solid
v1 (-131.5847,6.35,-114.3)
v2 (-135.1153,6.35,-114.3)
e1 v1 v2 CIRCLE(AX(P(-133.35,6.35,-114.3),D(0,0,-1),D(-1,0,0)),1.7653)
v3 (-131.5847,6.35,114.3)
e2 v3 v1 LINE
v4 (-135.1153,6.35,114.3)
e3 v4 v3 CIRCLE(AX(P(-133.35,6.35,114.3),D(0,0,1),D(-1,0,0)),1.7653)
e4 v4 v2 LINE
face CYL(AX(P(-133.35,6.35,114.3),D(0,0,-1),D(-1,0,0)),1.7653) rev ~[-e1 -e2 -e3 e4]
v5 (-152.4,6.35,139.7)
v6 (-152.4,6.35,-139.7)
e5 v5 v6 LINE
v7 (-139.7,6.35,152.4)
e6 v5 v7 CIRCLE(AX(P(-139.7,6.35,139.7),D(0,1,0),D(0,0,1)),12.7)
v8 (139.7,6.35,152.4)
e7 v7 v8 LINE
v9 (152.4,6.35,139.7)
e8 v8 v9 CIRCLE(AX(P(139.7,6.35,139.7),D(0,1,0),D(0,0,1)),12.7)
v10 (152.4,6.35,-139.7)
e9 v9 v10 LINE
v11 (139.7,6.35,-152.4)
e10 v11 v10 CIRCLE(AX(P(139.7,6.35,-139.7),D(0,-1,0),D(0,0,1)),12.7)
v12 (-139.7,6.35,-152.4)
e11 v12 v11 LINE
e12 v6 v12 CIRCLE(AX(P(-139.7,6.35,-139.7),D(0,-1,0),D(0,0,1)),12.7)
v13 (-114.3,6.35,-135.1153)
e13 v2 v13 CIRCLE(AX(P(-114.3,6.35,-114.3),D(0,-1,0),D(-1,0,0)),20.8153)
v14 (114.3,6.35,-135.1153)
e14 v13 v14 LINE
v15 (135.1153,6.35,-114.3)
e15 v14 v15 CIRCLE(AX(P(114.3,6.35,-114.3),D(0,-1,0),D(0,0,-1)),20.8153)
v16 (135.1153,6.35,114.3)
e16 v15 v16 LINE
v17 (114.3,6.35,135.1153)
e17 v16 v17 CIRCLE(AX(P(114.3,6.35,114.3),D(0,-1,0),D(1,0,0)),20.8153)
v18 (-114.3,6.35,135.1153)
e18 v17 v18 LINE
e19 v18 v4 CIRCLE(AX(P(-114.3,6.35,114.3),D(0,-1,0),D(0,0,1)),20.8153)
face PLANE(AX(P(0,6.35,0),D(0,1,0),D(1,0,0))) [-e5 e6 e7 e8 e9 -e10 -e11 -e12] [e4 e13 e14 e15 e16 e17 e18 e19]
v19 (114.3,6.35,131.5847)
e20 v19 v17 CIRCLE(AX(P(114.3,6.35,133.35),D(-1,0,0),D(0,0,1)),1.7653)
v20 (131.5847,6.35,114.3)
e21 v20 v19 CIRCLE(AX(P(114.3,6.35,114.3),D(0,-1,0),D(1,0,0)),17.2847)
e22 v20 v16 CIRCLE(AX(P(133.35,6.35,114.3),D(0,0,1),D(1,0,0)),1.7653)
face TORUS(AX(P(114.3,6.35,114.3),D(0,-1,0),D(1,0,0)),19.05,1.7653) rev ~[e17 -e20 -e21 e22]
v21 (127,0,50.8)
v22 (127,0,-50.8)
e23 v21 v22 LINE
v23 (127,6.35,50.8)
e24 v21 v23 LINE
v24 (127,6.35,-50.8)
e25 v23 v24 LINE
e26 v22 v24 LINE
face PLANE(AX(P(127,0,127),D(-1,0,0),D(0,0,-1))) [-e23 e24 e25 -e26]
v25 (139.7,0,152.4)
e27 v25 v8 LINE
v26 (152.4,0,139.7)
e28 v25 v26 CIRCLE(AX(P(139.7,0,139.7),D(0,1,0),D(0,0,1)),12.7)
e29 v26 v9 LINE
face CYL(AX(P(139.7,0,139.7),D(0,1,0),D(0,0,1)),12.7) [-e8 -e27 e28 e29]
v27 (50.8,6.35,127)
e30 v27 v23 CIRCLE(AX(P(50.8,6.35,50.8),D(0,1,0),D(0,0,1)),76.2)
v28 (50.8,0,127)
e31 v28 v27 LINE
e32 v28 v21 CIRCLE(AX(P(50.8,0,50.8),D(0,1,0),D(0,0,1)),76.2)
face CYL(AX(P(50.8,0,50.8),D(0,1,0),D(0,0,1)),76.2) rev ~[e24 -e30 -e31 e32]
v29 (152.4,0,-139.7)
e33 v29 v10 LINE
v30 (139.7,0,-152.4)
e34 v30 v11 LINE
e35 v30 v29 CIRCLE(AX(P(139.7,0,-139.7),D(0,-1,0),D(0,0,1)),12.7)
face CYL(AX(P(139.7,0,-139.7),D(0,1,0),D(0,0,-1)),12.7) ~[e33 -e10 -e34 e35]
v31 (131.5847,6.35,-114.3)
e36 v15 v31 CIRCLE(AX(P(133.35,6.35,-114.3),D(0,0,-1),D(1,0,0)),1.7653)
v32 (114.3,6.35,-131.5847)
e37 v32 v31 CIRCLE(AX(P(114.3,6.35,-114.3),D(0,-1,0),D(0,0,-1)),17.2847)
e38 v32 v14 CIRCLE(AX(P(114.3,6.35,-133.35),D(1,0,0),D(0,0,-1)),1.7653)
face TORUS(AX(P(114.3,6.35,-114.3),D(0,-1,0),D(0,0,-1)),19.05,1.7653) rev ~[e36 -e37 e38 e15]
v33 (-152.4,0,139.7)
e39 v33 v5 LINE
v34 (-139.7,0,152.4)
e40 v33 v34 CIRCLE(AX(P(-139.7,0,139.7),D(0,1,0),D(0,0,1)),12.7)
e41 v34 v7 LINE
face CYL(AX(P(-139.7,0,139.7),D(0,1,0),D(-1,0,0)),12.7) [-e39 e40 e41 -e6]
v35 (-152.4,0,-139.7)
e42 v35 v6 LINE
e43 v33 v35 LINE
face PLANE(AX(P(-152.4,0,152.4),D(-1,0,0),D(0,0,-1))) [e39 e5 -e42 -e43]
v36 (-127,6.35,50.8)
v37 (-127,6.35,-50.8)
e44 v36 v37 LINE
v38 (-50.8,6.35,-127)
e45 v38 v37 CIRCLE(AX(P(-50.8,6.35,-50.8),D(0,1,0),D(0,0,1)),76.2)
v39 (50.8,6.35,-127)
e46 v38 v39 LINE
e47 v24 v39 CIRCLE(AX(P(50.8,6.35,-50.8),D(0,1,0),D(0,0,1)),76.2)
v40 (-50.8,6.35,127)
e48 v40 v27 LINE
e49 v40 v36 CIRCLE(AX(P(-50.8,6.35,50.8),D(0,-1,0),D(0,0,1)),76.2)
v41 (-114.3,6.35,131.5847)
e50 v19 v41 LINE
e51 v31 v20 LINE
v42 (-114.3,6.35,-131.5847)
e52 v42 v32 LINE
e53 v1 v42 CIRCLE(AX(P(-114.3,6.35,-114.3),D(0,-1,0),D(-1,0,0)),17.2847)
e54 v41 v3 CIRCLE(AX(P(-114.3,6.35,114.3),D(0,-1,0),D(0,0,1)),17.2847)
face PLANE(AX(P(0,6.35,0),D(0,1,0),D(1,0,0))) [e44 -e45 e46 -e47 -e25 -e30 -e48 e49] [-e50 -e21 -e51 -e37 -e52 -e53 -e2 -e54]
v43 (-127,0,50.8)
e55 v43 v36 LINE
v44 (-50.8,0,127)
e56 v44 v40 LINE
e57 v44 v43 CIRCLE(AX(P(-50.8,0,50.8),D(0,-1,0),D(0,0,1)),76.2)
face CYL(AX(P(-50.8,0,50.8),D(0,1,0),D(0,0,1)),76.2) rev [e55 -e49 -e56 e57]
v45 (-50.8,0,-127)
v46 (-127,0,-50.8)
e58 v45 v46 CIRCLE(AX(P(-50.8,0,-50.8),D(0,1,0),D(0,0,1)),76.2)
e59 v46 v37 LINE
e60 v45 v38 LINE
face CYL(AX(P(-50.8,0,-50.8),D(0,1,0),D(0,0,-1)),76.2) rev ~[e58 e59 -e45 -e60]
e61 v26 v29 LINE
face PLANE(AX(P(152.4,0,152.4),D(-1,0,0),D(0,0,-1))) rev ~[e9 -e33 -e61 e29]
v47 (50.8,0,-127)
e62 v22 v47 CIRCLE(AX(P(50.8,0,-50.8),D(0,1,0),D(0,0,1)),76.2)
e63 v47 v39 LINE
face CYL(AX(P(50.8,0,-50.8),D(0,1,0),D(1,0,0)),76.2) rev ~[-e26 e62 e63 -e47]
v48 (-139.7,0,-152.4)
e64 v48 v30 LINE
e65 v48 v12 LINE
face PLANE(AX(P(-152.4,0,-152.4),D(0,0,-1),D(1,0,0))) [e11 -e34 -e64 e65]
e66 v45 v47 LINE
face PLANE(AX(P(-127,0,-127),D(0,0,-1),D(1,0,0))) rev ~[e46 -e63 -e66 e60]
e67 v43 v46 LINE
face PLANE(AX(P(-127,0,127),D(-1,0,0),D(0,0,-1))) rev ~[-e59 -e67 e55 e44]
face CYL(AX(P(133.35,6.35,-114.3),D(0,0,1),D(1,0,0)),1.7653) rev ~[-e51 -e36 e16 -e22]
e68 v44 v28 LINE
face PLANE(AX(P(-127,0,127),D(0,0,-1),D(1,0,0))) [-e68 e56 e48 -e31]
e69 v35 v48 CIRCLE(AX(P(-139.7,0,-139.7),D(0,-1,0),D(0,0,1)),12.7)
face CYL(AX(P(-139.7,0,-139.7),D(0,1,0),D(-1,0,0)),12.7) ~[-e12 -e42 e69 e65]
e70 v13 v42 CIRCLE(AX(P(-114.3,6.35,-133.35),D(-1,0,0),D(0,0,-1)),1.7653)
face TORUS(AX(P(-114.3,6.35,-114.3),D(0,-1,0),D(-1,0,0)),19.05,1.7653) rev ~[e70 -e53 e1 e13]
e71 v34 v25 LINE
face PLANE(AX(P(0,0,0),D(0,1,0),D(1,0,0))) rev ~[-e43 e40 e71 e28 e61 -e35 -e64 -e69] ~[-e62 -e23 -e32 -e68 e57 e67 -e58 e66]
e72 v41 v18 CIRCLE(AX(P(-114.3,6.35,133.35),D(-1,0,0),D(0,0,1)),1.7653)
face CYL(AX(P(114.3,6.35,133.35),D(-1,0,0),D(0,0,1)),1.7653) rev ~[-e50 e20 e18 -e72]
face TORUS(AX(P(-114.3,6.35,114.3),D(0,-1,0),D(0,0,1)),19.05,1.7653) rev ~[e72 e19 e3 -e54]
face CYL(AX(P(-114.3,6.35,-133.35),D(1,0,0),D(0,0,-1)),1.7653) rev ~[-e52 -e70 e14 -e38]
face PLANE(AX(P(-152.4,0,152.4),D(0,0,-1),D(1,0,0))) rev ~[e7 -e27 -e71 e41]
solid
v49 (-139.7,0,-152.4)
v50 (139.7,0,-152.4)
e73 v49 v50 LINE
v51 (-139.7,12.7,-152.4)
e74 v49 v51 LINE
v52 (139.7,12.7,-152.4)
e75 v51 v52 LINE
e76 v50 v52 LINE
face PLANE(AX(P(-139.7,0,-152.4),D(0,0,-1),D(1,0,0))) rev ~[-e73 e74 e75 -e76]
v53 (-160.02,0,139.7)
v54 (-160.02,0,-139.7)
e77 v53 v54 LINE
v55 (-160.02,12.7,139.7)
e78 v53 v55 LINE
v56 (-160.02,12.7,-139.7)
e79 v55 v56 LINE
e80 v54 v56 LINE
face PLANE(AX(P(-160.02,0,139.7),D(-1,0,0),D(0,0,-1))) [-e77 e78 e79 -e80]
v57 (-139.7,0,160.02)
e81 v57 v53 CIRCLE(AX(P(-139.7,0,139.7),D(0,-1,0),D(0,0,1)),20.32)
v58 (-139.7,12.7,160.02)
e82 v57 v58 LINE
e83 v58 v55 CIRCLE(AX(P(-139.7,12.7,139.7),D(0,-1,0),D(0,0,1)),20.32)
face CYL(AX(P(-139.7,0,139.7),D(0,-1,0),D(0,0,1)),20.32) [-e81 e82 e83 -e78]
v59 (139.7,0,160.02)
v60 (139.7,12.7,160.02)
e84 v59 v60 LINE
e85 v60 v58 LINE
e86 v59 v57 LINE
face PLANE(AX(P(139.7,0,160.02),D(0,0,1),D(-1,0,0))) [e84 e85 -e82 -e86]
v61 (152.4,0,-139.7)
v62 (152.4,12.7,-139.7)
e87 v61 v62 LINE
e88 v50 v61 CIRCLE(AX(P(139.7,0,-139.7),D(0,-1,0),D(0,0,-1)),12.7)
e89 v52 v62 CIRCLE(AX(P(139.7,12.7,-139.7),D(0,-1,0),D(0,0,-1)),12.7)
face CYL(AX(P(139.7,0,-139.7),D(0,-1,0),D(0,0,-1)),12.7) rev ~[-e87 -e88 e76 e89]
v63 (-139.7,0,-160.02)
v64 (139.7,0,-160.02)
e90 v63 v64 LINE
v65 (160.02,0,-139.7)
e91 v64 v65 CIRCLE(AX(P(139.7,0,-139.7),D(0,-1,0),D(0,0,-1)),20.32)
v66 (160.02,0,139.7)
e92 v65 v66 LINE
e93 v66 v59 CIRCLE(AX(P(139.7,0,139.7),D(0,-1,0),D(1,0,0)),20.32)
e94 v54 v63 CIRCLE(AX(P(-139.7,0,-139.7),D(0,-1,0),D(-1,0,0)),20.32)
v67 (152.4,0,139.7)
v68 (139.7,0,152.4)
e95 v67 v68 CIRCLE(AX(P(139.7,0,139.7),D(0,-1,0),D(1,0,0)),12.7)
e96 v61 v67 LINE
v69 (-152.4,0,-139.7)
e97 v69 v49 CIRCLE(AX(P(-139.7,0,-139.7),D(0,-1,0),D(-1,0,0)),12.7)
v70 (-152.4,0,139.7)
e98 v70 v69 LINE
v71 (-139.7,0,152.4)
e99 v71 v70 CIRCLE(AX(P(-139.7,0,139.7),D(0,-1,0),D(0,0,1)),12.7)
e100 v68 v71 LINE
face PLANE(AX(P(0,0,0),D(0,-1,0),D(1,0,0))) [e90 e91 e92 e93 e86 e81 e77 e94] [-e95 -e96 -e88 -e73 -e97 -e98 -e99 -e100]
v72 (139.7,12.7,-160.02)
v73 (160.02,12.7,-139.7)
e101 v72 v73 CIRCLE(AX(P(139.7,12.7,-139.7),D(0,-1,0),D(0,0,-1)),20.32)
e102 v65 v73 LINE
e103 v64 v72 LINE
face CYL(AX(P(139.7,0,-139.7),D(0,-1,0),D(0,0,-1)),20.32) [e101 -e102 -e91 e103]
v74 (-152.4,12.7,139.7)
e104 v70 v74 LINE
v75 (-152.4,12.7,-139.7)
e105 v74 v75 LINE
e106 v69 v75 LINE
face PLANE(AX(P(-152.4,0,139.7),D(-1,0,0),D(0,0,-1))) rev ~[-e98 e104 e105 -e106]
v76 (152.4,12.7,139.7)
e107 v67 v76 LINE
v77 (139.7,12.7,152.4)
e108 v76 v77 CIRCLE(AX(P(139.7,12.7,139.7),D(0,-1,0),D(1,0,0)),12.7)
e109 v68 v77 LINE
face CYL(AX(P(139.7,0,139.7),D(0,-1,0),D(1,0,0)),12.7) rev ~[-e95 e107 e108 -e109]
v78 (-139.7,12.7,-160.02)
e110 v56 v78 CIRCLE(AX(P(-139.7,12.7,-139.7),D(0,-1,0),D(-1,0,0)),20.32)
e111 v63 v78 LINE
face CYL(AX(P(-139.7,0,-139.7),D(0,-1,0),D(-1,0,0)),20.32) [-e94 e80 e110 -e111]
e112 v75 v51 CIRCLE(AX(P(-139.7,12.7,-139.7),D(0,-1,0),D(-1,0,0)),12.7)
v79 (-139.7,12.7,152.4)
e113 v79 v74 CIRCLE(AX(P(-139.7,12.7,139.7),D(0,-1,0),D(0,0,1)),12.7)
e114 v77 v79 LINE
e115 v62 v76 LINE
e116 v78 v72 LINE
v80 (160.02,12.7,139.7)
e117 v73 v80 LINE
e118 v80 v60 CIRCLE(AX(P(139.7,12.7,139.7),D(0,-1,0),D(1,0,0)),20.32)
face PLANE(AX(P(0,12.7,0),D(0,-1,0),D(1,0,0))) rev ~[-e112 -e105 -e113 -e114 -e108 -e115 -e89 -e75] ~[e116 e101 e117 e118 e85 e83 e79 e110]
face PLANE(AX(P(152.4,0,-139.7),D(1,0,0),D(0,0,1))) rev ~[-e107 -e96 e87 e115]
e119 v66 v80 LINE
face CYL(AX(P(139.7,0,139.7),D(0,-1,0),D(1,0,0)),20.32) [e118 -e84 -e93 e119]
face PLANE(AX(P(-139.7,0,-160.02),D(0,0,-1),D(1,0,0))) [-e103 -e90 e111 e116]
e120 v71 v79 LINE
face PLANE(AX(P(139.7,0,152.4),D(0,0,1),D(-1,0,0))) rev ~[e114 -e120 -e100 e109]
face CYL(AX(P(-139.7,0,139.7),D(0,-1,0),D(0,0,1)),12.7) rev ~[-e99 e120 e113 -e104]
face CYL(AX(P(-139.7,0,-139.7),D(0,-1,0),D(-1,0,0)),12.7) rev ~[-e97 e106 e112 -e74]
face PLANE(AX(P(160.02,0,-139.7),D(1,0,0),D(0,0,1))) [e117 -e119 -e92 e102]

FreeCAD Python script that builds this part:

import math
import FreeCAD as App
import Part
import Sketcher

V = App.Vector
Q = App.Units.Quantity


def edges_at(feature, points):
    """Names of the edges that pass closest to the given points."""
    edges = feature.Shape.Edges
    near = lambda p: min(range(len(edges)), key=lambda i: edges[i].distToShape(Part.Vertex(*p))[0])
    return sorted({f"Edge{near(p) + 1}" for p in points})


def add_polygon(sketch, points):
    """Adds a closed chain of lines whose ends are joined by coincident constraints."""
    first, n = sketch.GeometryCount, len(points)
    for a, b in zip(points, points[1:] + points[:1]):
        sketch.addGeometry(Part.LineSegment(App.Vector(*a, 0), App.Vector(*b, 0)), False)
    for i in range(n):
        sketch.addConstraint(Sketcher.Constraint("Coincident", first + i, 2, first + (i + 1) % n, 1))

doc = App.newDocument("Part")
params = doc.addObject("Spreadsheet::Sheet", "Params")
for row, (alias, value) in enumerate([
    ("sketch1_width", "12 in"),
    ("sketch1_width2", "10 in"),
    ("pad1_length", "0.25 in"),
    ("fillet_radius", "3 in"),
    ("fillet2_radius", "0.5 in"),
    ("sketch2_diameter", "0.139 in"),
    ("sketch3_width", "9 in"),
    ("sketch3_radius", "0.75 in"),
    ("sketch4_radius", "0.8 in"),
    ("sketch4_radius2", "0.5 in"),
    ("sketch4_width", "11 in"),
    ("pad2_length", "0.5 in"),
], start=1):
    params.set(f"A{row}", alias)
    params.set(f"B{row}", "=" + value)
    params.setAlias(f"B{row}", alias)

body = doc.addObject("PartDesign::Body", "Body")

sketch1 = doc.addObject("Sketcher::SketchObject", "Sketch")
body.addObject(sketch1)
sketch1.AttachmentSupport = (doc.XZ_Plane, [""])
sketch1.MapMode = "FlatFace"
add_polygon(sketch1, [(-152.4, -152.4), (-152.4, 152.4), (152.4, 152.4), (152.4, -152.4)])
add_polygon(sketch1, [(127, 127), (-127, 127), (-127, -127), (127, -127)])
sketch1.addConstraint(Sketcher.Constraint("Vertical", 0))
sketch1.addConstraint(Sketcher.Constraint("Horizontal", 1))
sketch1.addConstraint(Sketcher.Constraint("Vertical", 2))
sketch1.addConstraint(Sketcher.Constraint("Horizontal", 3))
sketch1.addConstraint(Sketcher.Constraint("Horizontal", 4))
sketch1.addConstraint(Sketcher.Constraint("Vertical", 5))
sketch1.addConstraint(Sketcher.Constraint("Horizontal", 6))
sketch1.addConstraint(Sketcher.Constraint("Vertical", 7))
sketch1.addConstraint(Sketcher.Constraint("Symmetric", 0, 2, 2, 2, -1, 1))
sketch1.addConstraint(Sketcher.Constraint("Symmetric", 4, 2, 6, 2, -1, 1))
sketch1.addConstraint(Sketcher.Constraint("Equal", 3, 0))
sketch1.addConstraint(Sketcher.Constraint("Equal", 6, 5))
sketch1.addConstraint(Sketcher.Constraint("DistanceX", 1, 1, 1, 2, Q("12 in")))
sketch1.addConstraint(Sketcher.Constraint("DistanceX", 4, 2, 4, 1, Q("10 in")))
sketch1.setExpression("Constraints[20]", "Params.sketch1_width")
sketch1.setExpression("Constraints[21]", "Params.sketch1_width2")
pad1 = doc.addObject("PartDesign::Pad", "Pad")
body.addObject(pad1)
pad1.Profile = sketch1
pad1.setExpression("Length", "Params.pad1_length")
pad1.Reversed = True
doc.recompute()

fillet = doc.addObject("PartDesign::Fillet", "Fillet")
body.addObject(fillet)
fillet.Base = (pad1, edges_at(pad1, [
    (-127, 3.175, -127),
    (-127, 3.175, 127),
    (127, 3.175, 127),
    (127, 3.175, -127),
]))
fillet.setExpression("Radius", "Params.fillet_radius")
doc.recompute()

fillet2 = doc.addObject("PartDesign::Fillet", "Fillet001")
body.addObject(fillet2)
fillet2.Base = (fillet, edges_at(fillet, [
    (152.4, 3.175, 152.4),
    (-152.4, 3.175, 152.4),
    (-152.4, 3.175, -152.4),
    (152.4, 3.175, -152.4),
]))
fillet2.setExpression("Radius", "Params.fillet2_radius")

sketch2 = doc.addObject("Sketcher::SketchObject", "Sketch001")
body.addObject(sketch2)
sketch2.AttachmentSupport = (doc.YZ_Plane, [""])
sketch2.MapMode = "FlatFace"
sketch2.addGeometry(Part.Circle(V(6.35, -133.35, 0), V(0, 0, 1), 1.7653), False)
sketch2.addConstraint(Sketcher.Constraint("Diameter", 0, Q("0.139 in")))
sketch2.addConstraint(Sketcher.Constraint("DistanceX", -1, 1, 0, 3, Q("0.25 in")))
sketch2.addConstraint(Sketcher.Constraint("DistanceY", 0, 3, -1, 1, Q("5.25 in")))
sketch2.setExpression("Constraints[0]", "Params.sketch2_diameter")

sketch3 = doc.addObject("Sketcher::SketchObject", "Sketch002")
body.addObject(sketch3)
sketch3.AttachmentSupport = (doc.XZ_Plane, [""])
sketch3.MapMode = "FlatFace"
sketch3.AttachmentOffset = App.Placement(V(0, 0, -0.25 * 25.4), App.Rotation())
sketch3.addGeometry(Part.LineSegment(V(114.3, 133.35, 0), V(-114.3, 133.35, 0)), False)
sketch3.addGeometry(Part.ArcOfCircle(Part.Circle(V(-114.3, 114.3, 0), V(0, 0, 1), 19.05), math.radians(90), math.radians(180)), False)
sketch3.addGeometry(Part.LineSegment(V(-133.35, 114.3, 0), V(-133.35, -114.3, 0)), False)
sketch3.addGeometry(Part.ArcOfCircle(Part.Circle(V(-114.3, -114.3, 0), V(0, 0, 1), 19.05), math.radians(180), math.radians(270)), False)
sketch3.addGeometry(Part.LineSegment(V(-114.3, -133.35, 0), V(114.3, -133.35, 0)), False)
sketch3.addGeometry(Part.ArcOfCircle(Part.Circle(V(114.3, -114.3, 0), V(0, 0, 1), 19.05), math.radians(-90), math.radians(0)), False)
sketch3.addGeometry(Part.LineSegment(V(133.35, -114.3, 0), V(133.35, 114.3, 0)), False)
sketch3.addGeometry(Part.ArcOfCircle(Part.Circle(V(114.3, 114.3, 0), V(0, 0, 1), 19.05), math.radians(0), math.radians(90)), False)
sketch3.addConstraint(Sketcher.Constraint("Tangent", 0, 2, 1, 1))
sketch3.addConstraint(Sketcher.Constraint("Tangent", 1, 2, 2, 1))
sketch3.addConstraint(Sketcher.Constraint("Tangent", 2, 2, 3, 1))
sketch3.addConstraint(Sketcher.Constraint("Tangent", 3, 2, 4, 1))
sketch3.addConstraint(Sketcher.Constraint("Tangent", 4, 2, 5, 1))
sketch3.addConstraint(Sketcher.Constraint("Tangent", 5, 2, 6, 1))
sketch3.addConstraint(Sketcher.Constraint("Tangent", 6, 2, 7, 1))
sketch3.addConstraint(Sketcher.Constraint("Tangent", 7, 2, 0, 1))
sketch3.addConstraint(Sketcher.Constraint("Horizontal", 0))
sketch3.addConstraint(Sketcher.Constraint("Vertical", 2))
sketch3.addConstraint(Sketcher.Constraint("Horizontal", 4))
sketch3.addConstraint(Sketcher.Constraint("Vertical", 6))
sketch3.addConstraint(Sketcher.Constraint("Equal", 1, 3))
sketch3.addConstraint(Sketcher.Constraint("Equal", 3, 5))
sketch3.addConstraint(Sketcher.Constraint("Equal", 5, 7))
sketch3.addConstraint(Sketcher.Constraint("Symmetric", 1, 3, 5, 3, -1, 1))
sketch3.addConstraint(Sketcher.Constraint("Equal", 4, 2))
sketch3.addConstraint(Sketcher.Constraint("DistanceX", 0, 2, 0, 1, Q("9 in")))
sketch3.addConstraint(Sketcher.Constraint("Radius", 1, Q("0.75 in")))
sketch3.setExpression("Constraints[17]", "Params.sketch3_width")
sketch3.setExpression("Constraints[18]", "Params.sketch3_radius")
doc.recompute()

subtractivepipe = doc.addObject("PartDesign::SubtractivePipe", "SubtractivePipe")
body.addObject(subtractivepipe)
subtractivepipe.Profile = sketch2
subtractivepipe.Spine = (sketch3, ["Edge1", "Edge2", "Edge3", "Edge4", "Edge5", "Edge6", "Edge7", "Edge8"])
body2 = doc.addObject("PartDesign::Body", "Body001")

sketch4 = doc.addObject("Sketcher::SketchObject", "Sketch003")
body2.addObject(sketch4)
sketch4.AttachmentSupport = (doc.getObject("XZ_Plane001"), [""])
sketch4.MapMode = "FlatFace"
sketch4.addGeometry(Part.LineSegment(V(139.7, 160.02, 0), V(-139.7, 160.02, 0)), False)
sketch4.addGeometry(Part.ArcOfCircle(Part.Circle(V(-139.7, 139.7, 0), V(0, 0, 1), 20.32), math.radians(90), math.radians(180)), False)
sketch4.addGeometry(Part.LineSegment(V(-160.02, 139.7, 0), V(-160.02, -139.7, 0)), False)
sketch4.addGeometry(Part.ArcOfCircle(Part.Circle(V(-139.7, -139.7, 0), V(0, 0, 1), 20.32), math.radians(180), math.radians(270)), False)
sketch4.addGeometry(Part.LineSegment(V(-139.7, -160.02, 0), V(139.7, -160.02, 0)), False)
sketch4.addGeometry(Part.ArcOfCircle(Part.Circle(V(139.7, -139.7, 0), V(0, 0, 1), 20.32), math.radians(-90), math.radians(0)), False)
sketch4.addGeometry(Part.LineSegment(V(160.02, -139.7, 0), V(160.02, 139.7, 0)), False)
sketch4.addGeometry(Part.ArcOfCircle(Part.Circle(V(139.7, 139.7, 0), V(0, 0, 1), 20.32), math.radians(0), math.radians(90)), False)
sketch4.addGeometry(Part.LineSegment(V(-139.7, 152.4, 0), V(139.7, 152.4, 0)), False)
sketch4.addGeometry(Part.ArcOfCircle(Part.Circle(V(139.7, 139.7, 0), V(0, 0, 1), 12.7), math.radians(0), math.radians(90)), False)
sketch4.addGeometry(Part.LineSegment(V(152.4, 139.7, 0), V(152.4, -139.7, 0)), False)
sketch4.addGeometry(Part.ArcOfCircle(Part.Circle(V(139.7, -139.7, 0), V(0, 0, 1), 12.7), math.radians(-90), math.radians(0)), False)
sketch4.addGeometry(Part.LineSegment(V(139.7, -152.4, 0), V(-139.7, -152.4, 0)), False)
sketch4.addGeometry(Part.ArcOfCircle(Part.Circle(V(-139.7, -139.7, 0), V(0, 0, 1), 12.7), math.radians(180), math.radians(270)), False)
sketch4.addGeometry(Part.LineSegment(V(-152.4, -139.7, 0), V(-152.4, 139.7, 0)), False)
sketch4.addGeometry(Part.ArcOfCircle(Part.Circle(V(-139.7, 139.7, 0), V(0, 0, 1), 12.7), math.radians(90), math.radians(180)), False)
sketch4.addConstraint(Sketcher.Constraint("Tangent", 0, 2, 1, 1))
sketch4.addConstraint(Sketcher.Constraint("Tangent", 1, 2, 2, 1))
sketch4.addConstraint(Sketcher.Constraint("Tangent", 2, 2, 3, 1))
sketch4.addConstraint(Sketcher.Constraint("Tangent", 3, 2, 4, 1))
sketch4.addConstraint(Sketcher.Constraint("Tangent", 4, 2, 5, 1))
sketch4.addConstraint(Sketcher.Constraint("Tangent", 5, 2, 6, 1))
sketch4.addConstraint(Sketcher.Constraint("Tangent", 6, 2, 7, 1))
sketch4.addConstraint(Sketcher.Constraint("Tangent", 7, 2, 0, 1))
sketch4.addConstraint(Sketcher.Constraint("Tangent", 8, 2, 9, 2))
sketch4.addConstraint(Sketcher.Constraint("Tangent", 9, 1, 10, 1))
sketch4.addConstraint(Sketcher.Constraint("Tangent", 10, 2, 11, 2))
sketch4.addConstraint(Sketcher.Constraint("Tangent", 11, 1, 12, 1))
sketch4.addConstraint(Sketcher.Constraint("Tangent", 12, 2, 13, 2))
sketch4.addConstraint(Sketcher.Constraint("Tangent", 13, 1, 14, 1))
sketch4.addConstraint(Sketcher.Constraint("Tangent", 14, 2, 15, 2))
sketch4.addConstraint(Sketcher.Constraint("Tangent", 15, 1, 8, 1))
sketch4.addConstraint(Sketcher.Constraint("Horizontal", 0))
sketch4.addConstraint(Sketcher.Constraint("Vertical", 2))
sketch4.addConstraint(Sketcher.Constraint("Horizontal", 4))
sketch4.addConstraint(Sketcher.Constraint("Vertical", 6))
sketch4.addConstraint(Sketcher.Constraint("Horizontal", 8))
sketch4.addConstraint(Sketcher.Constraint("Vertical", 10))
sketch4.addConstraint(Sketcher.Constraint("Horizontal", 12))
sketch4.addConstraint(Sketcher.Constraint("Vertical", 14))
sketch4.addConstraint(Sketcher.Constraint("Coincident", 9, 3, 7, 3))
sketch4.addConstraint(Sketcher.Constraint("Coincident", 11, 3, 5, 3))
sketch4.addConstraint(Sketcher.Constraint("Coincident", 13, 3, 3, 3))
sketch4.addConstraint(Sketcher.Constraint("Equal", 1, 3))
sketch4.addConstraint(Sketcher.Constraint("Equal", 3, 5))
sketch4.addConstraint(Sketcher.Constraint("Equal", 5, 7))
sketch4.addConstraint(Sketcher.Constraint("Equal", 13, 15))
sketch4.addConstraint(Sketcher.Constraint("Symmetric", 1, 3, 5, 3, -1, 1))
sketch4.addConstraint(Sketcher.Constraint("Equal", 12, 2))
sketch4.addConstraint(Sketcher.Constraint("Radius", 1, Q("0.8 in")))
sketch4.addConstraint(Sketcher.Constraint("Radius", 9, Q("0.5 in")))
sketch4.addConstraint(Sketcher.Constraint("DistanceX", 0, 2, 0, 1, Q("11 in")))
sketch4.setExpression("Constraints[33]", "Params.sketch4_radius")
sketch4.setExpression("Constraints[34]", "Params.sketch4_radius2")
sketch4.setExpression("Constraints[35]", "Params.sketch4_width")
pad2 = doc.addObject("PartDesign::Pad", "Pad001")
body2.addObject(pad2)
pad2.Profile = sketch4
pad2.setExpression("Length", "Params.pad2_length")
pad2.Reversed = True

doc.recompute()
